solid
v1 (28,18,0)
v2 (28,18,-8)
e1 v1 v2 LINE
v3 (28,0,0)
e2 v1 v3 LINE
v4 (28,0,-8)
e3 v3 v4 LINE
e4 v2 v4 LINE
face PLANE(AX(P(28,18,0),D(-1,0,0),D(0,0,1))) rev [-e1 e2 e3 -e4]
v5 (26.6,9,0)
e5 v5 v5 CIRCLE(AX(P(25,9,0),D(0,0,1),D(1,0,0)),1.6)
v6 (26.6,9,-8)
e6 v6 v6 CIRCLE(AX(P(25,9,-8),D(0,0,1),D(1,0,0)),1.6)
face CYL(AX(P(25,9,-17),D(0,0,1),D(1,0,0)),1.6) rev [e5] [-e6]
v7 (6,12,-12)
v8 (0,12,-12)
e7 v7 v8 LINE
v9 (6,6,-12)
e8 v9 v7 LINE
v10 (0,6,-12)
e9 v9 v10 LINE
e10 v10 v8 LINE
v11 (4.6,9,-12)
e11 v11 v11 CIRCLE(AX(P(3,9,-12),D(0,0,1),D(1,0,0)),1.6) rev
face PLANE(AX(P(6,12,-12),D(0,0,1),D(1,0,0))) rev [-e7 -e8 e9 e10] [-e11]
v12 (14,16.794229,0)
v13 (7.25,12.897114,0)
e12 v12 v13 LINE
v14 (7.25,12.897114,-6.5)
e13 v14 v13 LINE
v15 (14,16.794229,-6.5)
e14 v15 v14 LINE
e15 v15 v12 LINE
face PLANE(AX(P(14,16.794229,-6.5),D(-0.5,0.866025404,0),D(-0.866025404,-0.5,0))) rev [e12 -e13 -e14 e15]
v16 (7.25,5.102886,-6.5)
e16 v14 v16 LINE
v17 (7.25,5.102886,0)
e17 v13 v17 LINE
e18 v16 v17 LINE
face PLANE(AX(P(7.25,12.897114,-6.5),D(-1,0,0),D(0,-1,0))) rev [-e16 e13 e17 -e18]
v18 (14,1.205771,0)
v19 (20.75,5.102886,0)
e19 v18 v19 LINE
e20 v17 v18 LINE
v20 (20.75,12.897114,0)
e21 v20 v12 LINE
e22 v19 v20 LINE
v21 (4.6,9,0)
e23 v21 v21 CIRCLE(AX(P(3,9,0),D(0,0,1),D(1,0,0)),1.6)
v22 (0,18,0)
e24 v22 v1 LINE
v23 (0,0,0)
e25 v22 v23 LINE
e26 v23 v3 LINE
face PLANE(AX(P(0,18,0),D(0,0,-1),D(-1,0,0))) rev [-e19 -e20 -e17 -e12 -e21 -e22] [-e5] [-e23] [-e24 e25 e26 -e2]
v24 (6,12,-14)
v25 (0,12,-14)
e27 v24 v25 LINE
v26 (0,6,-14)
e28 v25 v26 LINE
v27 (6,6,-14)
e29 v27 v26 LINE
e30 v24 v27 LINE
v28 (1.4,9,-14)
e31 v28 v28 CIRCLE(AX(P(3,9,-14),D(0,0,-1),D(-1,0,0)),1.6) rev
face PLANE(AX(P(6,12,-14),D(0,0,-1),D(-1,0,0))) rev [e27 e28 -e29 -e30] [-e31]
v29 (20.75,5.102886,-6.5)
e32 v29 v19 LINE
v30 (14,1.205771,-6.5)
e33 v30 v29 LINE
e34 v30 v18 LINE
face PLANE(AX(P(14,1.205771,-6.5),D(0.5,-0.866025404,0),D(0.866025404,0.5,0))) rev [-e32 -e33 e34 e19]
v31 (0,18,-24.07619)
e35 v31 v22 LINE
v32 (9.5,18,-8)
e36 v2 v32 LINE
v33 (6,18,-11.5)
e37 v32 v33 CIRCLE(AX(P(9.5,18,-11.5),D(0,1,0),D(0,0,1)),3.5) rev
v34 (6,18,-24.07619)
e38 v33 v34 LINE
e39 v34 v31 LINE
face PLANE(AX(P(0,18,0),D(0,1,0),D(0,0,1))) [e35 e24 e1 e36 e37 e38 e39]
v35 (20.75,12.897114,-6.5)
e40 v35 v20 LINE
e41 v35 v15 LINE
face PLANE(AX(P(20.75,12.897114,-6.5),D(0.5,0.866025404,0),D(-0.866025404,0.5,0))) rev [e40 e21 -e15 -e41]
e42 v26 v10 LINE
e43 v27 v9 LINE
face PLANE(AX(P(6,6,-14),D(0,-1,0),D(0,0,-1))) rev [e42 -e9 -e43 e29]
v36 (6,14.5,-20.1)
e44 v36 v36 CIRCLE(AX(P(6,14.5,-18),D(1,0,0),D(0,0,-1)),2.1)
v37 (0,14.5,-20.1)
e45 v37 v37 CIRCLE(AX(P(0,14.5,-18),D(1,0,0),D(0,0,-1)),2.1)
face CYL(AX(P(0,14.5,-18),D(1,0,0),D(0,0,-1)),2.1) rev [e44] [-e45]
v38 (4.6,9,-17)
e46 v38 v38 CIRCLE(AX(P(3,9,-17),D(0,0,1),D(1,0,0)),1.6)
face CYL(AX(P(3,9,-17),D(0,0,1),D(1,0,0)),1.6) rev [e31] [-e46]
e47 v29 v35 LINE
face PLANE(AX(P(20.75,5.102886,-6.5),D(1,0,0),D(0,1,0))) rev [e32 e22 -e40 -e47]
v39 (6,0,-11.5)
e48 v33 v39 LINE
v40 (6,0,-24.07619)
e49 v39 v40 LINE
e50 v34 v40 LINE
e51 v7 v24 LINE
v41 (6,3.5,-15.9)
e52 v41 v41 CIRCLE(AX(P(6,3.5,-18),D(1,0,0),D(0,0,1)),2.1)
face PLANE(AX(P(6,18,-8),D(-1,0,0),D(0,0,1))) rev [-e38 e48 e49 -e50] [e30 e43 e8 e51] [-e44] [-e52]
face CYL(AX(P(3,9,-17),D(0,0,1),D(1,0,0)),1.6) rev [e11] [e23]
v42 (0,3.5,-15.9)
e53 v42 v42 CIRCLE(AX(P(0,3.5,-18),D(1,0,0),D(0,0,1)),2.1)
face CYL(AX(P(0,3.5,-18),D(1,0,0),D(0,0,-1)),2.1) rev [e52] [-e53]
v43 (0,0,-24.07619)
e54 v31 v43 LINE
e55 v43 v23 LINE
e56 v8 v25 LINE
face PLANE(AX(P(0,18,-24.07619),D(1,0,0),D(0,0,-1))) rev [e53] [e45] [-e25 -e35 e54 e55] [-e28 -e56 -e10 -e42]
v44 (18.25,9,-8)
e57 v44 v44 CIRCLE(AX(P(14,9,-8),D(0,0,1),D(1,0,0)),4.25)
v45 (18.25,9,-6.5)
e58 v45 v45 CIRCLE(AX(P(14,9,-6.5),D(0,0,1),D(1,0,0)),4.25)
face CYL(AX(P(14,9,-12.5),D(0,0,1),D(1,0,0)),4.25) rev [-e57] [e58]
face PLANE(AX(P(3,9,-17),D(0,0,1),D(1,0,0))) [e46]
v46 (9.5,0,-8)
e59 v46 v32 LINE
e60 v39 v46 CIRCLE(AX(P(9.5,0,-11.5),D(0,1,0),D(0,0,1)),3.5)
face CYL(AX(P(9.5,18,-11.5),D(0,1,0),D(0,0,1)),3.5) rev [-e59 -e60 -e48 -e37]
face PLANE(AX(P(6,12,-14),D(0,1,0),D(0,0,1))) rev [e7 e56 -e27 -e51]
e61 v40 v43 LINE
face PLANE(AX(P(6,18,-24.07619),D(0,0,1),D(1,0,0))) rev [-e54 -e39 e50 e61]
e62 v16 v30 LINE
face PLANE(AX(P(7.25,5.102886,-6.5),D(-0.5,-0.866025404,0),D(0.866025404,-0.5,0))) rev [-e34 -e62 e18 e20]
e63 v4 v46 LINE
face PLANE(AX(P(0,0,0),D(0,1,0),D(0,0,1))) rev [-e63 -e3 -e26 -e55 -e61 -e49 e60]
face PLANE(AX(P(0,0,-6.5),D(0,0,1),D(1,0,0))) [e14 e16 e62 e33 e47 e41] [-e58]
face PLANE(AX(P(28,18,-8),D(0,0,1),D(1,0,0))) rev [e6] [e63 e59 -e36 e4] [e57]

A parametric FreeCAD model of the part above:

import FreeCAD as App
import Part
import Sketcher
from FreeCAD import Vector
Q = App.Units.Quantity


def edges_at(feature, points):
    """Names of the edges that pass closest to the given points."""
    edges = feature.Shape.Edges
    near = lambda p: min(range(len(edges)), key=lambda i: edges[i].distToShape(Part.Vertex(*p))[0])
    return sorted({f"Edge{near(p) + 1}" for p in points})


def add_polygon(sketch, points):
    """Adds a closed chain of lines whose ends are joined by coincident constraints."""
    first, n = sketch.GeometryCount, len(points)
    for a, b in zip(points, points[1:] + points[:1]):
        sketch.addGeometry(Part.LineSegment(App.Vector(*a, 0), App.Vector(*b, 0)), False)
    for i in range(n):
        sketch.addConstraint(Sketcher.Constraint("Coincident", first + i, 2, first + (i + 1) % n, 1))

doc = App.newDocument("Part")
params = doc.addObject("Spreadsheet::Sheet", "Params")
for row, (alias, value) in enumerate([
    ("sketch1_width", "28 mm"),
    ("sketch1_width2", "22 mm"),
    ("sketch1_height", "8 mm"),
    ("pad1_length", "18 mm"),
    ("pocket1_length", "6.5 mm"),
    ("sketch3_diameter", "3.2 mm"),
    ("pocket2_length", "17 mm"),
    ("sketch4_width", "6 mm"),
    ("sketch4_height", "2 mm"),
    ("pocket3_length", "6 mm"),
    ("sketch5_diameter", "8.5 mm"),
    ("pocket4_length", "6 mm"),
    ("fillet_radius", "3.5 mm"),
    ("sketch6_diameter", "4.2 mm"),
    ("pocket5_length", "6 mm"),
], start=1):
    params.set(f"A{row}", alias)
    params.set(f"B{row}", "=" + value)
    params.setAlias(f"B{row}", alias)

body = doc.addObject("PartDesign::Body", "Body")

sketch1 = body.newObject("Sketcher::SketchObject", "Sketch")
sketch1.AttachmentSupport = (doc.getObject("XZ_Plane"), [""])
sketch1.MapMode = "FlatFace"
add_polygon(sketch1, [(0, -24), (0, 0), (28, 0), (28, -8), (6, -8), (6, -24)])
sketch1.addConstraint([
    Sketcher.Constraint("Vertical", 0),
    Sketcher.Constraint("Horizontal", 1),
    Sketcher.Constraint("Vertical", 2),
    Sketcher.Constraint("Horizontal", 3),
    Sketcher.Constraint("Vertical", 4),
    Sketcher.Constraint("Horizontal", 5),
    Sketcher.Constraint("Coincident", 0, 2, -1, 1),
    Sketcher.Constraint("DistanceX", 1, 1, 1, 2, Q("28 mm")),
    Sketcher.Constraint("DistanceX", 3, 2, 3, 1, Q("22 mm")),
    Sketcher.Constraint("DistanceY", 2, 2, 2, 1, Q("8 mm")),
    Sketcher.Constraint("DistanceY", 0, 1, 0, 2, Q("24.07619 mm")),
])
sketch1.setExpression("Constraints[13]", "Params.sketch1_width")
sketch1.setExpression("Constraints[14]", "Params.sketch1_width2")
sketch1.setExpression("Constraints[15]", "Params.sketch1_height")
pad1 = body.newObject("PartDesign::Pad", "Pad")
pad1.Profile = sketch1
pad1.setExpression("Length", "Params.pad1_length")
pad1.Reversed = True

sketch2 = body.newObject("Sketcher::SketchObject", "Sketch001")
sketch2.AttachmentSupport = (doc.getObject("XY_Plane"), [""])
sketch2.MapMode = "FlatFace"
add_polygon(sketch2, [(21, 5), (21, 13), (14, 17), (7, 13), (7, 5), (14, 1)])
sketch2.addConstraint([
    Sketcher.Constraint("Vertical", 0),
    Sketcher.Constraint("Vertical", 3),
    Sketcher.Constraint("Parallel", 1, 4),
    Sketcher.Constraint("Parallel", 2, 5),
    Sketcher.Constraint("Horizontal", 0, 2, 2, 2),
    Sketcher.Constraint("Horizontal", 3, 2, 5, 2),
    Sketcher.Constraint("Vertical", 1, 2, 4, 2),
    Sketcher.Constraint("Angle", 1, Q("150 deg")),
    Sketcher.Constraint("DistanceX", -1, 1, 1, 2, Q("14 mm")),
    Sketcher.Constraint("DistanceX", 2, 2, 0, 2, Q("13.5 mm")),
    Sketcher.Constraint("DistanceY", 0, 1, 0, 2, Q("7.794229 mm")),
    Sketcher.Constraint("DistanceY", -1, 1, 1, 2, Q("16.794229 mm")),
])
pocket1 = body.newObject("PartDesign::Pocket", "Pocket")
pocket1.Profile = sketch2
pocket1.setExpression("Length", "Params.pocket1_length")

sketch3 = body.newObject("Sketcher::SketchObject", "Sketch002")
sketch3.AttachmentSupport = (doc.getObject("XY_Plane"), [""])
sketch3.MapMode = "FlatFace"
sketch3.addGeometry([
    Part.Circle(Vector(25, 9, 0), Vector(0, 0, 1), 1.6),
    Part.Circle(Vector(3, 9, 0), Vector(0, 0, 1), 1.6),
], False)
sketch3.addConstraint([
    Sketcher.Constraint("Equal", 0, 1),
    Sketcher.Constraint("Horizontal", 0, 3, 1, 3),
    Sketcher.Constraint("Diameter", 0, Q("3.2 mm")),
    Sketcher.Constraint("DistanceX", -1, 1, 0, 3, Q("25 mm")),
    Sketcher.Constraint("DistanceY", -1, 1, 0, 3, Q("9 mm")),
    Sketcher.Constraint("DistanceX", -1, 1, 1, 3, Q("3 mm")),
])
sketch3.setExpression("Constraints[2]", "Params.sketch3_diameter")
pocket2 = body.newObject("PartDesign::Pocket", "Pocket001")
pocket2.Profile = sketch3
pocket2.setExpression("Length", "Params.pocket2_length")

sketch4 = body.newObject("Sketcher::SketchObject", "Sketch003")
sketch4.AttachmentSupport = (doc.getObject("YZ_Plane"), [""])
sketch4.MapMode = "FlatFace"
add_polygon(sketch4, [(12, -14), (6, -14), (6, -12), (12, -12)])
sketch4.addConstraint([
    Sketcher.Constraint("Horizontal", 0),
    Sketcher.Constraint("Vertical", 1),
    Sketcher.Constraint("Horizontal", 2),
    Sketcher.Constraint("Vertical", 3),
    Sketcher.Constraint("DistanceX", 0, 2, 0, 1, Q("6 mm")),
    Sketcher.Constraint("DistanceY", 1, 1, 1, 2, Q("2 mm")),
    Sketcher.Constraint("DistanceX", -1, 1, 0, 2, Q("6 mm")),
    Sketcher.Constraint("DistanceY", 0, 2, -1, 1, Q("14 mm")),
])
sketch4.setExpression("Constraints[8]", "Params.sketch4_width")
sketch4.setExpression("Constraints[9]", "Params.sketch4_height")
pocket3 = body.newObject("PartDesign::Pocket", "Pocket002")
pocket3.Profile = sketch4
pocket3.setExpression("Length", "Params.pocket3_length")
pocket3.Reversed = True

sketch5 = body.newObject("Sketcher::SketchObject", "Sketch004")
sketch5.AttachmentSupport = (doc.getObject("XY_Plane"), [""])
sketch5.MapMode = "FlatFace"
sketch5.AttachmentOffset = App.Placement(Vector(0, 0, -6.5), App.Rotation())
sketch5.addGeometry(Part.Circle(Vector(14, 9, 0), Vector(0, 0, 1), 4.2), False)
sketch5.addConstraint([
    Sketcher.Constraint("Diameter", 0, Q("8.5 mm")),
    Sketcher.Constraint("DistanceX", -1, 1, 0, 3, Q("14 mm")),
    Sketcher.Constraint("DistanceY", -1, 1, 0, 3, Q("9 mm")),
])
sketch5.setExpression("Constraints[0]", "Params.sketch5_diameter")
pocket4 = body.newObject("PartDesign::Pocket", "Pocket003")
pocket4.Profile = sketch5
pocket4.setExpression("Length", "Params.pocket4_length")
doc.recompute()

fillet = body.newObject("PartDesign::Fillet", "Fillet")
fillet.Base = (pocket4, edges_at(pocket4, [(6, 9, -8)]))
fillet.setExpression("Radius", "Params.fillet_radius")

sketch6 = body.newObject("Sketcher::SketchObject", "Sketch005")
sketch6.AttachmentSupport = (doc.getObject("YZ_Plane"), [""])
sketch6.MapMode = "FlatFace"
sketch6.AttachmentOffset = App.Placement(Vector(0, 0, 6), App.Rotation())
sketch6.addGeometry([
    Part.Circle(Vector(14.5, -18, 0), Vector(0, 0, 1), 2.1),
    Part.Circle(Vector(3.5, -18, 0), Vector(0, 0, 1), 2.1),
], False)
sketch6.addConstraint([
    Sketcher.Constraint("Equal", 0, 1),
    Sketcher.Constraint("Horizontal", 0, 3, 1, 3),
    Sketcher.Constraint("Diameter", 0, Q("4.2 mm")),
    Sketcher.Constraint("DistanceY", 0, 3, -1, 1, Q("18 mm")),
    Sketcher.Constraint("DistanceX", 1, 3, 0, 3, Q("11 mm")),
    Sketcher.Constraint("DistanceX", -1, 1, 0, 3, Q("14.5 mm")),
])
sketch6.setExpression("Constraints[2]", "Params.sketch6_diameter")
pocket5 = body.newObject("PartDesign::Pocket", "Pocket004")
pocket5.Profile = sketch6
pocket5.setExpression("Length", "Params.pocket5_length")

doc.recompute()
